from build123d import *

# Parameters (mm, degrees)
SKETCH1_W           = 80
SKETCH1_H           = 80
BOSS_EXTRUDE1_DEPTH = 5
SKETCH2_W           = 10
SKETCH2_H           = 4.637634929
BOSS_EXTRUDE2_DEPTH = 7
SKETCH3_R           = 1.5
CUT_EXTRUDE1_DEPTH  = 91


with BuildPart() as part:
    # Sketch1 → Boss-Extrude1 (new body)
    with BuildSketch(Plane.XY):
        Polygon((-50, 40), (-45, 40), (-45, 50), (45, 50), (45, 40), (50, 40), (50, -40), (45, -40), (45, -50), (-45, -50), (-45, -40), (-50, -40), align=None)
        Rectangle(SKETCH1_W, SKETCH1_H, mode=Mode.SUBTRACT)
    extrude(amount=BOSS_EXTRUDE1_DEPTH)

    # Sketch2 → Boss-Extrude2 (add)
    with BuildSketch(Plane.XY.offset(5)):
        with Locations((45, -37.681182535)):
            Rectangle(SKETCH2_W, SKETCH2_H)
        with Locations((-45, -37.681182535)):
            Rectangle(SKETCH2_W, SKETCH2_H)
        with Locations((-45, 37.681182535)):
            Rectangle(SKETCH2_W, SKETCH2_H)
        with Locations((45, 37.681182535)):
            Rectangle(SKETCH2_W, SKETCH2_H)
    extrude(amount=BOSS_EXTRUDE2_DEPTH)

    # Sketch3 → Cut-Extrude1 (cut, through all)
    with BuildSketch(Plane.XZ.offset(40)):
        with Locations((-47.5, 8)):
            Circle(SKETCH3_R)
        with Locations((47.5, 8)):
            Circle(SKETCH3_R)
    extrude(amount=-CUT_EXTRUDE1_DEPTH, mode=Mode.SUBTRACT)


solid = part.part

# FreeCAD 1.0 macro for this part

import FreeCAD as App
import Part
import Sketcher

V = App.Vector
Q = App.Units.Quantity


def add_polygon(sketch, points):
    """Adds a closed chain of lines whose ends are joined by coincident constraints."""
    first, n = sketch.GeometryCount, len(points)
    for a, b in zip(points, points[1:] + points[:1]):
        sketch.addGeometry(Part.LineSegment(App.Vector(*a, 0), App.Vector(*b, 0)), False)
    for i in range(n):
        sketch.addConstraint(Sketcher.Constraint("Coincident", first + i, 2, first + (i + 1) % n, 1))

doc = App.newDocument("Part")
body = doc.addObject("PartDesign::Body", "Body")

sketch1 = body.newObject("Sketcher::SketchObject", "Sketch")
sketch1.AttachmentSupport = (doc.getObject("XY_Plane"), [""])
sketch1.MapMode = "FlatFace"
add_polygon(sketch1, [(-45, 40), (-50, 40), (-50, -40), (-45, -40), (-45, -50), (45, -50), (45, -40), (50, -40), (50, 40), (45, 40), (45, 50), (-45, 50)])
add_polygon(sketch1, [(-40, -40), (-40, 40), (40, 40), (40, -40)])
sketch1.addConstraint([
    Sketcher.Constraint("Horizontal", 0),
    Sketcher.Constraint("Vertical", 1),
    Sketcher.Constraint("Horizontal", 2),
    Sketcher.Constraint("Vertical", 3),
    Sketcher.Constraint("Horizontal", 4),
    Sketcher.Constraint("Vertical", 5),
    Sketcher.Constraint("Horizontal", 6),
    Sketcher.Constraint("Vertical", 7),
    Sketcher.Constraint("Horizontal", 8),
    Sketcher.Constraint("Vertical", 9),
    Sketcher.Constraint("Horizontal", 10),
    Sketcher.Constraint("Vertical", 11),
    Sketcher.Constraint("Vertical", 12),
    Sketcher.Constraint("Horizontal", 13),
    Sketcher.Constraint("Vertical", 14),
    Sketcher.Constraint("Horizontal", 15),
    Sketcher.Constraint("Symmetric", 0, 2, 6, 2, -1, 1),
    Sketcher.Constraint("Symmetric", 2, 2, 8, 2, -1, 1),
    Sketcher.Constraint("Symmetric", 4, 2, 10, 2, -1, 1),
    Sketcher.Constraint("Symmetric", 12, 2, 14, 2, -1, 1),
    Sketcher.Constraint("Symmetric", 2, 2, 5, 2, -2),
    Sketcher.Constraint("Horizontal", 11, 2, 12, 2),
    Sketcher.Constraint("Equal", 15, 1),
    Sketcher.Constraint("DistanceX", 0, 2, 0, 1, Q("5 mm")),
    Sketcher.Constraint("DistanceX", 4, 1, 4, 2, Q("90 mm")),
    Sketcher.Constraint("DistanceX", 13, 1, 13, 2, Q("80 mm")),
    Sketcher.Constraint("DistanceY", 3, 2, 3, 1, Q("10 mm")),
])
pad1 = body.newObject("PartDesign::Pad", "Pad")
pad1.Profile = sketch1
pad1.Length = 5

sketch2 = body.newObject("Sketcher::SketchObject", "Sketch001")
sketch2.AttachmentSupport = (doc.getObject("XY_Plane"), [""])
sketch2.MapMode = "FlatFace"
sketch2.AttachmentOffset = App.Placement(V(0, 0, 5), App.Rotation())
add_polygon(sketch2, [(40, -35.4), (40, -40), (50, -40), (50, -35.4)])
add_polygon(sketch2, [(-50, -35.4), (-50, -40), (-40, -40), (-40, -35.4)])
add_polygon(sketch2, [(-50, 40), (-50, 35.4), (-40, 35.4), (-40, 40)])
add_polygon(sketch2, [(40, 40), (40, 35.4), (50, 35.4), (50, 40)])
sketch2.addConstraint([
    Sketcher.Constraint("Vertical", 0),
    Sketcher.Constraint("Horizontal", 1),
    Sketcher.Constraint("Vertical", 2),
    Sketcher.Constraint("Horizontal", 3),
    Sketcher.Constraint("Vertical", 4),
    Sketcher.Constraint("Horizontal", 5),
    Sketcher.Constraint("Vertical", 6),
    Sketcher.Constraint("Horizontal", 7),
    Sketcher.Constraint("Vertical", 8),
    Sketcher.Constraint("Horizontal", 9),
    Sketcher.Constraint("Vertical", 10),
    Sketcher.Constraint("Horizontal", 11),
    Sketcher.Constraint("Vertical", 12),
    Sketcher.Constraint("Horizontal", 13),
    Sketcher.Constraint("Vertical", 14),
    Sketcher.Constraint("Horizontal", 15),
    Sketcher.Constraint("Symmetric", 2, 2, 8, 2, -1, 1),
    Sketcher.Constraint("Symmetric", 0, 2, 10, 2, -1, 1),
    Sketcher.Constraint("Symmetric", 6, 2, 12, 2, -1, 1),
    Sketcher.Constraint("Symmetric", 4, 2, 14, 2, -1, 1),
    Sketcher.Constraint("Symmetric", 1, 2, 4, 2, -2),
    Sketcher.Constraint("Symmetric", 3, 2, 6, 2, -2),
    Sketcher.Constraint("DistanceX", 1, 1, 1, 2, Q("10 mm")),
    Sketcher.Constraint("DistanceX", -1, 1, 0, 2, Q("40 mm")),
    Sketcher.Constraint("DistanceY", 0, 2, -1, 1, Q("40 mm")),
    Sketcher.Constraint("DistanceY", 0, 2, 0, 1, Q("4.637635 mm")),
])
pad2 = body.newObject("PartDesign::Pad", "Pad001")
pad2.Profile = sketch2
pad2.Length = 7

sketch3 = body.newObject("Sketcher::SketchObject", "Sketch002")
sketch3.AttachmentSupport = (doc.getObject("XZ_Plane"), [""])
sketch3.MapMode = "FlatFace"
sketch3.AttachmentOffset = App.Placement(V(0, 0, 40), App.Rotation())
sketch3.addGeometry([
    Part.Circle(V(-47.5, 8, 0), V(0, 0, 1), 1.5),
    Part.Circle(V(47.5, 8, 0), V(0, 0, 1), 1.5),
], False)
sketch3.addConstraint([
    Sketcher.Constraint("Equal", 0, 1),
    Sketcher.Constraint("Symmetric", 0, 3, 1, 3, -2),
    Sketcher.Constraint("Diameter", 0, Q("3 mm")),
    Sketcher.Constraint("DistanceY", -1, 1, 0, 3, Q("8 mm")),
    Sketcher.Constraint("DistanceX", 0, 3, 1, 3, Q("95 mm")),
])
pocket1 = body.newObject("PartDesign::Pocket", "Pocket")
pocket1.Profile = sketch3
pocket1.Type = "ThroughAll"

doc.recompute()
